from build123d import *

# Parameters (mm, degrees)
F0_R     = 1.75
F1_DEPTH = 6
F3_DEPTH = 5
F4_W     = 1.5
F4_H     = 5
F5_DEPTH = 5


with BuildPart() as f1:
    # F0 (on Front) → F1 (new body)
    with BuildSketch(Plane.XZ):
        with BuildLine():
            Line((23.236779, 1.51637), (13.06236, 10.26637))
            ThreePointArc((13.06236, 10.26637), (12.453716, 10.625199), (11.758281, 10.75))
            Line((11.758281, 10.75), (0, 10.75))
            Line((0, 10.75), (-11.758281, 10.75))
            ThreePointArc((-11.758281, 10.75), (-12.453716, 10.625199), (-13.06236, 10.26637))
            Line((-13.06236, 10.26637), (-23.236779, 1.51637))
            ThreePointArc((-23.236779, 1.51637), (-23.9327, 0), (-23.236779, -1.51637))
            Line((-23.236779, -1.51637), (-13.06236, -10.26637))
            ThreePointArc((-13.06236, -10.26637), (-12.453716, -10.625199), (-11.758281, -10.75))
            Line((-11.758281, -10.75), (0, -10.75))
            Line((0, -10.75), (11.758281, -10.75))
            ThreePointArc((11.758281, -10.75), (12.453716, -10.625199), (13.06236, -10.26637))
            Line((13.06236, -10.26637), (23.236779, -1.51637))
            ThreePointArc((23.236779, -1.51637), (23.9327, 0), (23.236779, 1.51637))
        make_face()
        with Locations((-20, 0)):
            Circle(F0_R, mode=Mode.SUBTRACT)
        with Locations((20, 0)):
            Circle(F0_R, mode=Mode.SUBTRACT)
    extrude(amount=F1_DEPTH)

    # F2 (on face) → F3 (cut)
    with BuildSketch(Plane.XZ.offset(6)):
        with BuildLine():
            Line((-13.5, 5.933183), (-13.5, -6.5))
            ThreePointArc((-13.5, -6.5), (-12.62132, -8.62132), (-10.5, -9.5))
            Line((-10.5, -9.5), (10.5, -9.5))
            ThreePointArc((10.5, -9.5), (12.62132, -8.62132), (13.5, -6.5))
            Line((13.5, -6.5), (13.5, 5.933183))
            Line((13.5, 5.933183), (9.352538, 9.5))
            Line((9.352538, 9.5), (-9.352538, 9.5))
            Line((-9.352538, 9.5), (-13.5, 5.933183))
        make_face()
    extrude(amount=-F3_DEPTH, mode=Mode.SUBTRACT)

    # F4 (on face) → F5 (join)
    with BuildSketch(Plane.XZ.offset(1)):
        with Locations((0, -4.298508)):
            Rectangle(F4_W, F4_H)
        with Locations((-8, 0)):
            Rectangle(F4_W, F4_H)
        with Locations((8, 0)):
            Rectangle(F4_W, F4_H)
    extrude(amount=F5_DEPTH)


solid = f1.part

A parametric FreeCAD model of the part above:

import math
import FreeCAD as App
import Part
import Sketcher
from FreeCAD import Vector


def add_polygon(sketch, points):
    """Adds a closed chain of lines whose ends are joined by coincident constraints."""
    first, n = sketch.GeometryCount, len(points)
    for a, b in zip(points, points[1:] + points[:1]):
        sketch.addGeometry(Part.LineSegment(App.Vector(*a, 0), App.Vector(*b, 0)), False)
    for i in range(n):
        sketch.addConstraint(Sketcher.Constraint("Coincident", first + i, 2, first + (i + 1) % n, 1))

doc = App.newDocument("Part")
body = doc.addObject("PartDesign::Body", "Body")

# Sketch on XZ plane
sketch1 = body.newObject("Sketcher::SketchObject", "Sketch")
sketch1.AttachmentSupport = (doc.getObject("XZ_Plane"), [""])
sketch1.MapMode = "FlatFace"
sketch1.addGeometry([
    Part.LineSegment(Vector(23.2, 1.5, 0), Vector(13.1, 10.3, 0)),  # 0
    Part.ArcOfCircle(Part.Circle(Vector(11.8, 8.8, 0), Vector(0, 0, 1), 2), math.radians(49), math.radians(90)),  # 1
    Part.LineSegment(Vector(11.8, 10.8, 0), Vector(-11.8, 10.8, 0)),  # 2
    Part.ArcOfCircle(Part.Circle(Vector(-11.8, 8.8, 0), Vector(0, 0, 1), 2), math.radians(90), math.radians(131)),  # 3
    Part.LineSegment(Vector(-13.1, 10.3, 0), Vector(-23.2, 1.5, 0)),  # 4
    Part.ArcOfCircle(Part.Circle(Vector(-21.9, 0, 0), Vector(0, 0, 1), 2), math.radians(131), math.radians(229)),  # 5
    Part.LineSegment(Vector(-23.2, -1.5, 0), Vector(-13.1, -10.3, 0)),  # 6
    Part.ArcOfCircle(Part.Circle(Vector(-11.8, -8.8, 0), Vector(0, 0, 1), 2), math.radians(-131), math.radians(-90)),  # 7
    Part.LineSegment(Vector(-11.8, -10.8, 0), Vector(11.8, -10.8, 0)),  # 8
    Part.ArcOfCircle(Part.Circle(Vector(11.8, -8.8, 0), Vector(0, 0, 1), 2), math.radians(-90), math.radians(-49)),  # 9
    Part.LineSegment(Vector(13.1, -10.3, 0), Vector(23.2, -1.5, 0)),  # 10
    Part.ArcOfCircle(Part.Circle(Vector(21.9, 0, 0), Vector(0, 0, 1), 2), math.radians(-49), math.radians(49)),  # 11
    Part.Circle(Vector(-20, 0, 0), Vector(0, 0, 1), 1.8),  # 12
    Part.Circle(Vector(20, 0, 0), Vector(0, 0, 1), 1.8),  # 13
], False)
sketch1.addConstraint([
    Sketcher.Constraint("Tangent", 0, 2, 1, 1),
    Sketcher.Constraint("Tangent", 1, 2, 2, 1),
    Sketcher.Constraint("Tangent", 2, 2, 3, 1),
    Sketcher.Constraint("Tangent", 3, 2, 4, 1),
    Sketcher.Constraint("Tangent", 4, 2, 5, 1),
    Sketcher.Constraint("Tangent", 5, 2, 6, 1),
    Sketcher.Constraint("Tangent", 6, 2, 7, 1),
    Sketcher.Constraint("Tangent", 7, 2, 8, 1),
    Sketcher.Constraint("Tangent", 8, 2, 9, 1),
    Sketcher.Constraint("Tangent", 9, 2, 10, 1),
    Sketcher.Constraint("Tangent", 10, 2, 11, 1),
    Sketcher.Constraint("Tangent", 11, 2, 0, 1),
    Sketcher.Constraint("Horizontal", 2),
    Sketcher.Constraint("Horizontal", 8),
    Sketcher.Constraint("Equal", 1, 3),
    Sketcher.Constraint("Equal", 3, 7),
    Sketcher.Constraint("Equal", 7, 9),
    Sketcher.Constraint("Equal", 5, 11),
    Sketcher.Constraint("Equal", 12, 13),
    Sketcher.Constraint("Symmetric", 1, 3, 7, 3, -1, 1),
    Sketcher.Constraint("Symmetric", 5, 3, 11, 3, -1, 1),
    Sketcher.Constraint("Symmetric", 12, 3, 13, 3, -1, 1),
    Sketcher.Constraint("Symmetric", 0, 2, 3, 2, -2),
    Sketcher.Constraint("PointOnObject", 12, 3, -1),
    Sketcher.Constraint("Parallel", 4, 10),
    Sketcher.Constraint("Radius", 5, 2.0),
    Sketcher.Constraint("Diameter", 12, 3.5),
    Sketcher.Constraint("DistanceX", 12, 3, -1, 1, 20.0),
    Sketcher.Constraint("DistanceY", -1, 1, 1, 2, 10.75),
    Sketcher.Constraint("DistanceY", 4, 2, 3, 2, 8.75),
    Sketcher.Constraint("DistanceX", 5, 3, -1, 1, 21.9327),
    Sketcher.Constraint("DistanceX", 5, 2, 7, 2, 11.478498),
])
pad1 = body.newObject("PartDesign::Pad", "Pad")
pad1.Profile = sketch1
pad1.Length = 6

# Sketch on XZ plane
sketch2 = body.newObject("Sketcher::SketchObject", "Sketch001")
sketch2.AttachmentSupport = (doc.getObject("XZ_Plane"), [""])
sketch2.MapMode = "FlatFace"
sketch2.AttachmentOffset = App.Placement(Vector(0, 0, 6), App.Rotation())
sketch2.addGeometry([
    Part.LineSegment(Vector(-13.5, 5.9, 0), Vector(-13.5, -6.5, 0)),  # 0
    Part.ArcOfCircle(Part.Circle(Vector(-10.5, -6.5, 0), Vector(0, 0, 1), 3), math.radians(-180), math.radians(-90)),  # 1
    Part.LineSegment(Vector(-10.5, -9.5, 0), Vector(10.5, -9.5, 0)),  # 2
    Part.ArcOfCircle(Part.Circle(Vector(10.5, -6.5, 0), Vector(0, 0, 1), 3), math.radians(-90), math.radians(0)),  # 3
    Part.LineSegment(Vector(13.5, -6.5, 0), Vector(13.5, 5.9, 0)),  # 4
    Part.LineSegment(Vector(13.5, 5.9, 0), Vector(9.4, 9.5, 0)),  # 5
    Part.LineSegment(Vector(9.4, 9.5, 0), Vector(-9.4, 9.5, 0)),  # 6
    Part.LineSegment(Vector(-9.4, 9.5, 0), Vector(-13.5, 5.9, 0)),  # 7
], False)
sketch2.addConstraint([
    Sketcher.Constraint("Tangent", 0, 2, 1, 1),
    Sketcher.Constraint("Tangent", 1, 2, 2, 1),
    Sketcher.Constraint("Tangent", 2, 2, 3, 1),
    Sketcher.Constraint("Tangent", 3, 2, 4, 1),
    Sketcher.Constraint("Coincident", 4, 2, 5, 1),
    Sketcher.Constraint("Coincident", 5, 2, 6, 1),
    Sketcher.Constraint("Coincident", 6, 2, 7, 1),
    Sketcher.Constraint("Coincident", 7, 2, 0, 1),
    Sketcher.Constraint("Vertical", 0),
    Sketcher.Constraint("Horizontal", 2),
    Sketcher.Constraint("Vertical", 4),
    Sketcher.Constraint("Horizontal", 6),
    Sketcher.Constraint("Equal", 1, 3),
    Sketcher.Constraint("Symmetric", 4, 2, 7, 2, -2),
    Sketcher.Constraint("Equal", 5, 7),
    Sketcher.Constraint("Radius", 1, 3.000001),
    Sketcher.Constraint("DistanceX", 2, 1, 2, 2, 21.0),
    Sketcher.Constraint("DistanceY", 3, 3, 5, 2, 15.999999),
    Sketcher.Constraint("DistanceY", 1, 3, -1, 1, 6.499999),
    Sketcher.Constraint("Distance", 5, 5.470249),
    Sketcher.Constraint("DistanceX", 6, 2, 6, 1, 18.705076),
])
pocket1 = body.newObject("PartDesign::Pocket", "Pocket")
pocket1.Profile = sketch2
pocket1.Length = 5

# Sketch on XZ plane
sketch3 = body.newObject("Sketcher::SketchObject", "Sketch002")
sketch3.AttachmentSupport = (doc.getObject("XZ_Plane"), [""])
sketch3.MapMode = "FlatFace"
sketch3.AttachmentOffset = App.Placement(Vector(0, 0, 1), App.Rotation())
add_polygon(sketch3, [(-0.8, -1.8), (-0.8, -6.8), (0.8, -6.8), (0.8, -1.8)])  # lines 0-3
add_polygon(sketch3, [(-8.8, 2.5), (-8.8, -2.5), (-7.2, -2.5), (-7.2, 2.5)])  # lines 4-7
add_polygon(sketch3, [(7.2, 2.5), (7.2, -2.5), (8.8, -2.5), (8.8, 2.5)])  # lines 8-11
sketch3.addConstraint([
    Sketcher.Constraint("Vertical", 0),
    Sketcher.Constraint("Horizontal", 1),
    Sketcher.Constraint("Vertical", 2),
    Sketcher.Constraint("Horizontal", 3),
    Sketcher.Constraint("Vertical", 4),
    Sketcher.Constraint("Horizontal", 5),
    Sketcher.Constraint("Vertical", 6),
    Sketcher.Constraint("Horizontal", 7),
    Sketcher.Constraint("Vertical", 8),
    Sketcher.Constraint("Horizontal", 9),
    Sketcher.Constraint("Vertical", 10),
    Sketcher.Constraint("Horizontal", 11),
    Sketcher.Constraint("Symmetric", 6, 2, 8, 2, -1, 1),
    Sketcher.Constraint("Symmetric", 4, 2, 10, 2, -1, 1),
    Sketcher.Constraint("Horizontal", 5, 2, 8, 2),
    Sketcher.Constraint("Equal", 3, 5),
    Sketcher.Constraint("Equal", 2, 4),
    Sketcher.Constraint("DistanceY", 0, 2, 0, 1, 5.0),
    Sketcher.Constraint("DistanceX", 1, 1, 1, 2, 1.5),
    Sketcher.Constraint("DistanceX", 4, 2, 3, 2, 8.0),
    Sketcher.Constraint("DistanceX", 3, 2, 8, 2, 8.0),
    Sketcher.Constraint("DistanceY", 0, 2, -1, 1, 6.798508),
])
pad2 = body.newObject("PartDesign::Pad", "Pad001")
pad2.Profile = sketch3
pad2.Length = 5

doc.recompute()
